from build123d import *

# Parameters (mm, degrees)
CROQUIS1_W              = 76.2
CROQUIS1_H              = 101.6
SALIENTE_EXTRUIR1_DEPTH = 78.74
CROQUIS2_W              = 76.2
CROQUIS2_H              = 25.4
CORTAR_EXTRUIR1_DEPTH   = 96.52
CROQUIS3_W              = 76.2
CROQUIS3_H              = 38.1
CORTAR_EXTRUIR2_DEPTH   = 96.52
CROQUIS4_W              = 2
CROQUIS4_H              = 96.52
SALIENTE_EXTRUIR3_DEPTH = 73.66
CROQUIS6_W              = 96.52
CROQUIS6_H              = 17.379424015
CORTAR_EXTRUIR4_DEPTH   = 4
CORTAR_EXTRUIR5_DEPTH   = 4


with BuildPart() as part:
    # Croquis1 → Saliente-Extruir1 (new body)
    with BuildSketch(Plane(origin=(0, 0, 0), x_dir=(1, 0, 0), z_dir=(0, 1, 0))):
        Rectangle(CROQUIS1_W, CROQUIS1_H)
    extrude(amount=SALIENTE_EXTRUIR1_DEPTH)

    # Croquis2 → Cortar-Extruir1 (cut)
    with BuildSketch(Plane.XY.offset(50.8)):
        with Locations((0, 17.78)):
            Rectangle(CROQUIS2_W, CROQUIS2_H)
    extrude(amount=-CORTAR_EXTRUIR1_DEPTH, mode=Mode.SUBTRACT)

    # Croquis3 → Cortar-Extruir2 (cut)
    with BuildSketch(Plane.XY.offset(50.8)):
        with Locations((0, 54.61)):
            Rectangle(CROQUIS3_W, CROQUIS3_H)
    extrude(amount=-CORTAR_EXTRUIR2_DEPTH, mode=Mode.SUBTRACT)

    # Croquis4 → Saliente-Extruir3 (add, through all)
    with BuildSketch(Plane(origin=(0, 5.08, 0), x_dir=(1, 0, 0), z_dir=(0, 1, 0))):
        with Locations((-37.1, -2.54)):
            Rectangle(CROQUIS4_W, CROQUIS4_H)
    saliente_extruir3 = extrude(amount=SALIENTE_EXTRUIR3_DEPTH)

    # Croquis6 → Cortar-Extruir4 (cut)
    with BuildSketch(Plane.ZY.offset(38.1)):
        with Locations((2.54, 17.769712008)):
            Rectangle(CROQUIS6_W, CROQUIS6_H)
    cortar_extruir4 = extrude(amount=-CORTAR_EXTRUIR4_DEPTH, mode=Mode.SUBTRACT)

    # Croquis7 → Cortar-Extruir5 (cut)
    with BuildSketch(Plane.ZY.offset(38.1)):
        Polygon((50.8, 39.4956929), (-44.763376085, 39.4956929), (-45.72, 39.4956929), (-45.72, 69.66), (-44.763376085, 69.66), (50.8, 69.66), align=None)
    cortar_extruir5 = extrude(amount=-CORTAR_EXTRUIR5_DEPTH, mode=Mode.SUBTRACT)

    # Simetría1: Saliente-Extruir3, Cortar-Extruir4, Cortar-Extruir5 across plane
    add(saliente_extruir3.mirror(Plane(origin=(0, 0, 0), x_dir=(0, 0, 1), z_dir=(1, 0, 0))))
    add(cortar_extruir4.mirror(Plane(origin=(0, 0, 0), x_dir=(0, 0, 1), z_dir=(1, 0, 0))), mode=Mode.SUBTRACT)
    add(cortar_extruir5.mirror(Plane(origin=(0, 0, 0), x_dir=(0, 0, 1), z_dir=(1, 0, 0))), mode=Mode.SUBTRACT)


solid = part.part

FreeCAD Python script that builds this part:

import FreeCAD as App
import Part
import Sketcher
from FreeCAD import Vector
Q = App.Units.Quantity


def add_polygon(sketch, points):
    """Adds a closed chain of lines whose ends are joined by coincident constraints."""
    first, n = sketch.GeometryCount, len(points)
    for a, b in zip(points, points[1:] + points[:1]):
        sketch.addGeometry(Part.LineSegment(App.Vector(*a, 0), App.Vector(*b, 0)), False)
    for i in range(n):
        sketch.addConstraint(Sketcher.Constraint("Coincident", first + i, 2, first + (i + 1) % n, 1))

doc = App.newDocument("Part")
body = doc.addObject("PartDesign::Body", "Body")

# Sketch on XZ plane
sketch1 = body.newObject("Sketcher::SketchObject", "Sketch")
sketch1.AttachmentSupport = (doc.getObject("XZ_Plane"), [""])
sketch1.MapMode = "FlatFace"
add_polygon(sketch1, [(-38.1, -50.8), (-38.1, 50.8), (38.1, 50.8), (38.1, -50.8)])  # lines 0-3
sketch1.addConstraint([
    Sketcher.Constraint("Vertical", 0),
    Sketcher.Constraint("Horizontal", 1),
    Sketcher.Constraint("Vertical", 2),
    Sketcher.Constraint("Horizontal", 3),
    Sketcher.Constraint("Symmetric", 0, 2, 2, 2, -1, 1),
    Sketcher.Constraint("DistanceX", 1, 1, 1, 2, Q("3 in")),
    Sketcher.Constraint("DistanceY", 0, 1, 0, 2, Q("4 in")),
])
pad1 = body.newObject("PartDesign::Pad", "Pad")
pad1.Profile = sketch1
pad1.Length = Q("3.1 in")
pad1.Reversed = True

# Sketch on XY plane
sketch2 = body.newObject("Sketcher::SketchObject", "Sketch001")
sketch2.AttachmentSupport = (doc.getObject("XY_Plane"), [""])
sketch2.MapMode = "FlatFace"
sketch2.AttachmentOffset = App.Placement(Vector(0, 0, 2 * 25.4), App.Rotation())
add_polygon(sketch2, [(-38.1, 30.48), (-38.1, 5.08), (38.1, 5.08), (38.1, 30.48)])  # lines 0-3
sketch2.addConstraint([
    Sketcher.Constraint("Vertical", 0),
    Sketcher.Constraint("Horizontal", 1),
    Sketcher.Constraint("Vertical", 2),
    Sketcher.Constraint("Horizontal", 3),
    Sketcher.Constraint("DistanceX", 1, 1, 1, 2, Q("3 in")),
    Sketcher.Constraint("DistanceY", 0, 2, 0, 1, Q("1 in")),
    Sketcher.Constraint("DistanceX", 0, 2, -1, 1, Q("1.5 in")),
    Sketcher.Constraint("DistanceY", -1, 1, 0, 2, Q("0.2 in")),
])
pocket1 = body.newObject("PartDesign::Pocket", "Pocket")
pocket1.Profile = sketch2
pocket1.Length = Q("3.8 in")

# Sketch on XY plane
sketch3 = body.newObject("Sketcher::SketchObject", "Sketch002")
sketch3.AttachmentSupport = (doc.getObject("XY_Plane"), [""])
sketch3.MapMode = "FlatFace"
sketch3.AttachmentOffset = App.Placement(Vector(0, 0, 2 * 25.4), App.Rotation())
add_polygon(sketch3, [(-38.1, 73.66), (-38.1, 35.56), (38.1, 35.56), (38.1, 73.66)])  # lines 0-3
sketch3.addConstraint([
    Sketcher.Constraint("Vertical", 0),
    Sketcher.Constraint("Horizontal", 1),
    Sketcher.Constraint("Vertical", 2),
    Sketcher.Constraint("Horizontal", 3),
    Sketcher.Constraint("DistanceX", 1, 1, 1, 2, Q("3 in")),
    Sketcher.Constraint("DistanceY", 0, 2, 0, 1, Q("1.5 in")),
    Sketcher.Constraint("DistanceX", 0, 2, -1, 1, Q("1.5 in")),
    Sketcher.Constraint("DistanceY", -1, 1, 0, 2, Q("1.4 in")),
])
pocket2 = body.newObject("PartDesign::Pocket", "Pocket001")
pocket2.Profile = sketch3
pocket2.Length = Q("3.8 in")

# Sketch on XZ plane
sketch4 = body.newObject("Sketcher::SketchObject", "Sketch003")
sketch4.AttachmentSupport = (doc.getObject("XZ_Plane"), [""])
sketch4.MapMode = "FlatFace"
sketch4.AttachmentOffset = App.Placement(Vector(0, 0, -0.2 * 25.4), App.Rotation())
add_polygon(sketch4, [(-38.1, -45.72), (-38.1, 50.8), (-36.1, 50.8), (-36.1, -45.72)])  # lines 0-3
sketch4.addConstraint([
    Sketcher.Constraint("Vertical", 0),
    Sketcher.Constraint("Horizontal", 1),
    Sketcher.Constraint("Vertical", 2),
    Sketcher.Constraint("Horizontal", 3),
    Sketcher.Constraint("DistanceY", 0, 1, 0, 2, Q("3.8 in")),
    Sketcher.Constraint("DistanceY", -1, 1, 0, 2, Q("2 in")),
    Sketcher.Constraint("DistanceX", 0, 2, -1, 1, Q("1.5 in")),
    Sketcher.Constraint("DistanceX", 1, 1, 1, 2, 2.0),
])
pad2 = body.newObject("PartDesign::Pad", "Pad001")
pad2.Profile = sketch4
pad2.Type = "UpToLast"
pad2.Reversed = True

# Sketch on YZ plane
sketch5 = body.newObject("Sketcher::SketchObject", "Sketch004")
sketch5.AttachmentSupport = (doc.getObject("YZ_Plane"), [""])
sketch5.MapMode = "FlatFace"
sketch5.AttachmentOffset = App.Placement(Vector(0, 0, -1.5 * 25.4), App.Rotation())
add_polygon(sketch5, [(26.459424, -45.72), (9.08, -45.72), (9.08, 50.8), (26.459424, 50.8)])  # lines 0-3
sketch5.addConstraint([
    Sketcher.Constraint("Horizontal", 0),
    Sketcher.Constraint("Vertical", 1),
    Sketcher.Constraint("Horizontal", 2),
    Sketcher.Constraint("Vertical", 3),
    Sketcher.Constraint("DistanceY", 1, 1, 1, 2, Q("3.8 in")),
    Sketcher.Constraint("DistanceY", -1, 1, 1, 2, Q("2 in")),
    Sketcher.Constraint("DistanceX", -1, 1, 0, 2, 9.08),
    Sketcher.Constraint("DistanceX", 0, 2, 0, 1, 17.379424),
])
pocket3 = body.newObject("PartDesign::Pocket", "Pocket002")
pocket3.Profile = sketch5
pocket3.Length = 4
pocket3.Reversed = True

# Sketch on YZ plane
sketch6 = body.newObject("Sketcher::SketchObject", "Sketch005")
sketch6.AttachmentSupport = (doc.getObject("YZ_Plane"), [""])
sketch6.MapMode = "FlatFace"
sketch6.AttachmentOffset = App.Placement(Vector(0, 0, -1.5 * 25.4), App.Rotation())
add_polygon(sketch6, [(39.495693, -45.72), (39.495693, 50.8), (69.66, 50.8), (69.66, -45.72)])  # lines 0-3
sketch6.addConstraint([
    Sketcher.Constraint("Vertical", 0),
    Sketcher.Constraint("Horizontal", 1),
    Sketcher.Constraint("Vertical", 2),
    Sketcher.Constraint("Horizontal", 3),
    Sketcher.Constraint("DistanceY", 0, 1, 0, 2, Q("3.8 in")),
    Sketcher.Constraint("DistanceY", -1, 1, 0, 2, Q("2 in")),
    Sketcher.Constraint("DistanceX", -1, 1, 1, 2, 69.66),
    Sketcher.Constraint("DistanceX", 1, 1, 1, 2, 30.164307),
])
pocket4 = body.newObject("PartDesign::Pocket", "Pocket003")
pocket4.Profile = sketch6
pocket4.Length = 4
pocket4.Reversed = True
doc.recompute()

mirrored = body.newObject("PartDesign::Mirrored", "Mirrored")
mirrored.Originals = [pad2, pocket3, pocket4]
mirrored.MirrorPlane = (doc.getObject("YZ_Plane"), [""])
body.Tip = mirrored

doc.recompute()
